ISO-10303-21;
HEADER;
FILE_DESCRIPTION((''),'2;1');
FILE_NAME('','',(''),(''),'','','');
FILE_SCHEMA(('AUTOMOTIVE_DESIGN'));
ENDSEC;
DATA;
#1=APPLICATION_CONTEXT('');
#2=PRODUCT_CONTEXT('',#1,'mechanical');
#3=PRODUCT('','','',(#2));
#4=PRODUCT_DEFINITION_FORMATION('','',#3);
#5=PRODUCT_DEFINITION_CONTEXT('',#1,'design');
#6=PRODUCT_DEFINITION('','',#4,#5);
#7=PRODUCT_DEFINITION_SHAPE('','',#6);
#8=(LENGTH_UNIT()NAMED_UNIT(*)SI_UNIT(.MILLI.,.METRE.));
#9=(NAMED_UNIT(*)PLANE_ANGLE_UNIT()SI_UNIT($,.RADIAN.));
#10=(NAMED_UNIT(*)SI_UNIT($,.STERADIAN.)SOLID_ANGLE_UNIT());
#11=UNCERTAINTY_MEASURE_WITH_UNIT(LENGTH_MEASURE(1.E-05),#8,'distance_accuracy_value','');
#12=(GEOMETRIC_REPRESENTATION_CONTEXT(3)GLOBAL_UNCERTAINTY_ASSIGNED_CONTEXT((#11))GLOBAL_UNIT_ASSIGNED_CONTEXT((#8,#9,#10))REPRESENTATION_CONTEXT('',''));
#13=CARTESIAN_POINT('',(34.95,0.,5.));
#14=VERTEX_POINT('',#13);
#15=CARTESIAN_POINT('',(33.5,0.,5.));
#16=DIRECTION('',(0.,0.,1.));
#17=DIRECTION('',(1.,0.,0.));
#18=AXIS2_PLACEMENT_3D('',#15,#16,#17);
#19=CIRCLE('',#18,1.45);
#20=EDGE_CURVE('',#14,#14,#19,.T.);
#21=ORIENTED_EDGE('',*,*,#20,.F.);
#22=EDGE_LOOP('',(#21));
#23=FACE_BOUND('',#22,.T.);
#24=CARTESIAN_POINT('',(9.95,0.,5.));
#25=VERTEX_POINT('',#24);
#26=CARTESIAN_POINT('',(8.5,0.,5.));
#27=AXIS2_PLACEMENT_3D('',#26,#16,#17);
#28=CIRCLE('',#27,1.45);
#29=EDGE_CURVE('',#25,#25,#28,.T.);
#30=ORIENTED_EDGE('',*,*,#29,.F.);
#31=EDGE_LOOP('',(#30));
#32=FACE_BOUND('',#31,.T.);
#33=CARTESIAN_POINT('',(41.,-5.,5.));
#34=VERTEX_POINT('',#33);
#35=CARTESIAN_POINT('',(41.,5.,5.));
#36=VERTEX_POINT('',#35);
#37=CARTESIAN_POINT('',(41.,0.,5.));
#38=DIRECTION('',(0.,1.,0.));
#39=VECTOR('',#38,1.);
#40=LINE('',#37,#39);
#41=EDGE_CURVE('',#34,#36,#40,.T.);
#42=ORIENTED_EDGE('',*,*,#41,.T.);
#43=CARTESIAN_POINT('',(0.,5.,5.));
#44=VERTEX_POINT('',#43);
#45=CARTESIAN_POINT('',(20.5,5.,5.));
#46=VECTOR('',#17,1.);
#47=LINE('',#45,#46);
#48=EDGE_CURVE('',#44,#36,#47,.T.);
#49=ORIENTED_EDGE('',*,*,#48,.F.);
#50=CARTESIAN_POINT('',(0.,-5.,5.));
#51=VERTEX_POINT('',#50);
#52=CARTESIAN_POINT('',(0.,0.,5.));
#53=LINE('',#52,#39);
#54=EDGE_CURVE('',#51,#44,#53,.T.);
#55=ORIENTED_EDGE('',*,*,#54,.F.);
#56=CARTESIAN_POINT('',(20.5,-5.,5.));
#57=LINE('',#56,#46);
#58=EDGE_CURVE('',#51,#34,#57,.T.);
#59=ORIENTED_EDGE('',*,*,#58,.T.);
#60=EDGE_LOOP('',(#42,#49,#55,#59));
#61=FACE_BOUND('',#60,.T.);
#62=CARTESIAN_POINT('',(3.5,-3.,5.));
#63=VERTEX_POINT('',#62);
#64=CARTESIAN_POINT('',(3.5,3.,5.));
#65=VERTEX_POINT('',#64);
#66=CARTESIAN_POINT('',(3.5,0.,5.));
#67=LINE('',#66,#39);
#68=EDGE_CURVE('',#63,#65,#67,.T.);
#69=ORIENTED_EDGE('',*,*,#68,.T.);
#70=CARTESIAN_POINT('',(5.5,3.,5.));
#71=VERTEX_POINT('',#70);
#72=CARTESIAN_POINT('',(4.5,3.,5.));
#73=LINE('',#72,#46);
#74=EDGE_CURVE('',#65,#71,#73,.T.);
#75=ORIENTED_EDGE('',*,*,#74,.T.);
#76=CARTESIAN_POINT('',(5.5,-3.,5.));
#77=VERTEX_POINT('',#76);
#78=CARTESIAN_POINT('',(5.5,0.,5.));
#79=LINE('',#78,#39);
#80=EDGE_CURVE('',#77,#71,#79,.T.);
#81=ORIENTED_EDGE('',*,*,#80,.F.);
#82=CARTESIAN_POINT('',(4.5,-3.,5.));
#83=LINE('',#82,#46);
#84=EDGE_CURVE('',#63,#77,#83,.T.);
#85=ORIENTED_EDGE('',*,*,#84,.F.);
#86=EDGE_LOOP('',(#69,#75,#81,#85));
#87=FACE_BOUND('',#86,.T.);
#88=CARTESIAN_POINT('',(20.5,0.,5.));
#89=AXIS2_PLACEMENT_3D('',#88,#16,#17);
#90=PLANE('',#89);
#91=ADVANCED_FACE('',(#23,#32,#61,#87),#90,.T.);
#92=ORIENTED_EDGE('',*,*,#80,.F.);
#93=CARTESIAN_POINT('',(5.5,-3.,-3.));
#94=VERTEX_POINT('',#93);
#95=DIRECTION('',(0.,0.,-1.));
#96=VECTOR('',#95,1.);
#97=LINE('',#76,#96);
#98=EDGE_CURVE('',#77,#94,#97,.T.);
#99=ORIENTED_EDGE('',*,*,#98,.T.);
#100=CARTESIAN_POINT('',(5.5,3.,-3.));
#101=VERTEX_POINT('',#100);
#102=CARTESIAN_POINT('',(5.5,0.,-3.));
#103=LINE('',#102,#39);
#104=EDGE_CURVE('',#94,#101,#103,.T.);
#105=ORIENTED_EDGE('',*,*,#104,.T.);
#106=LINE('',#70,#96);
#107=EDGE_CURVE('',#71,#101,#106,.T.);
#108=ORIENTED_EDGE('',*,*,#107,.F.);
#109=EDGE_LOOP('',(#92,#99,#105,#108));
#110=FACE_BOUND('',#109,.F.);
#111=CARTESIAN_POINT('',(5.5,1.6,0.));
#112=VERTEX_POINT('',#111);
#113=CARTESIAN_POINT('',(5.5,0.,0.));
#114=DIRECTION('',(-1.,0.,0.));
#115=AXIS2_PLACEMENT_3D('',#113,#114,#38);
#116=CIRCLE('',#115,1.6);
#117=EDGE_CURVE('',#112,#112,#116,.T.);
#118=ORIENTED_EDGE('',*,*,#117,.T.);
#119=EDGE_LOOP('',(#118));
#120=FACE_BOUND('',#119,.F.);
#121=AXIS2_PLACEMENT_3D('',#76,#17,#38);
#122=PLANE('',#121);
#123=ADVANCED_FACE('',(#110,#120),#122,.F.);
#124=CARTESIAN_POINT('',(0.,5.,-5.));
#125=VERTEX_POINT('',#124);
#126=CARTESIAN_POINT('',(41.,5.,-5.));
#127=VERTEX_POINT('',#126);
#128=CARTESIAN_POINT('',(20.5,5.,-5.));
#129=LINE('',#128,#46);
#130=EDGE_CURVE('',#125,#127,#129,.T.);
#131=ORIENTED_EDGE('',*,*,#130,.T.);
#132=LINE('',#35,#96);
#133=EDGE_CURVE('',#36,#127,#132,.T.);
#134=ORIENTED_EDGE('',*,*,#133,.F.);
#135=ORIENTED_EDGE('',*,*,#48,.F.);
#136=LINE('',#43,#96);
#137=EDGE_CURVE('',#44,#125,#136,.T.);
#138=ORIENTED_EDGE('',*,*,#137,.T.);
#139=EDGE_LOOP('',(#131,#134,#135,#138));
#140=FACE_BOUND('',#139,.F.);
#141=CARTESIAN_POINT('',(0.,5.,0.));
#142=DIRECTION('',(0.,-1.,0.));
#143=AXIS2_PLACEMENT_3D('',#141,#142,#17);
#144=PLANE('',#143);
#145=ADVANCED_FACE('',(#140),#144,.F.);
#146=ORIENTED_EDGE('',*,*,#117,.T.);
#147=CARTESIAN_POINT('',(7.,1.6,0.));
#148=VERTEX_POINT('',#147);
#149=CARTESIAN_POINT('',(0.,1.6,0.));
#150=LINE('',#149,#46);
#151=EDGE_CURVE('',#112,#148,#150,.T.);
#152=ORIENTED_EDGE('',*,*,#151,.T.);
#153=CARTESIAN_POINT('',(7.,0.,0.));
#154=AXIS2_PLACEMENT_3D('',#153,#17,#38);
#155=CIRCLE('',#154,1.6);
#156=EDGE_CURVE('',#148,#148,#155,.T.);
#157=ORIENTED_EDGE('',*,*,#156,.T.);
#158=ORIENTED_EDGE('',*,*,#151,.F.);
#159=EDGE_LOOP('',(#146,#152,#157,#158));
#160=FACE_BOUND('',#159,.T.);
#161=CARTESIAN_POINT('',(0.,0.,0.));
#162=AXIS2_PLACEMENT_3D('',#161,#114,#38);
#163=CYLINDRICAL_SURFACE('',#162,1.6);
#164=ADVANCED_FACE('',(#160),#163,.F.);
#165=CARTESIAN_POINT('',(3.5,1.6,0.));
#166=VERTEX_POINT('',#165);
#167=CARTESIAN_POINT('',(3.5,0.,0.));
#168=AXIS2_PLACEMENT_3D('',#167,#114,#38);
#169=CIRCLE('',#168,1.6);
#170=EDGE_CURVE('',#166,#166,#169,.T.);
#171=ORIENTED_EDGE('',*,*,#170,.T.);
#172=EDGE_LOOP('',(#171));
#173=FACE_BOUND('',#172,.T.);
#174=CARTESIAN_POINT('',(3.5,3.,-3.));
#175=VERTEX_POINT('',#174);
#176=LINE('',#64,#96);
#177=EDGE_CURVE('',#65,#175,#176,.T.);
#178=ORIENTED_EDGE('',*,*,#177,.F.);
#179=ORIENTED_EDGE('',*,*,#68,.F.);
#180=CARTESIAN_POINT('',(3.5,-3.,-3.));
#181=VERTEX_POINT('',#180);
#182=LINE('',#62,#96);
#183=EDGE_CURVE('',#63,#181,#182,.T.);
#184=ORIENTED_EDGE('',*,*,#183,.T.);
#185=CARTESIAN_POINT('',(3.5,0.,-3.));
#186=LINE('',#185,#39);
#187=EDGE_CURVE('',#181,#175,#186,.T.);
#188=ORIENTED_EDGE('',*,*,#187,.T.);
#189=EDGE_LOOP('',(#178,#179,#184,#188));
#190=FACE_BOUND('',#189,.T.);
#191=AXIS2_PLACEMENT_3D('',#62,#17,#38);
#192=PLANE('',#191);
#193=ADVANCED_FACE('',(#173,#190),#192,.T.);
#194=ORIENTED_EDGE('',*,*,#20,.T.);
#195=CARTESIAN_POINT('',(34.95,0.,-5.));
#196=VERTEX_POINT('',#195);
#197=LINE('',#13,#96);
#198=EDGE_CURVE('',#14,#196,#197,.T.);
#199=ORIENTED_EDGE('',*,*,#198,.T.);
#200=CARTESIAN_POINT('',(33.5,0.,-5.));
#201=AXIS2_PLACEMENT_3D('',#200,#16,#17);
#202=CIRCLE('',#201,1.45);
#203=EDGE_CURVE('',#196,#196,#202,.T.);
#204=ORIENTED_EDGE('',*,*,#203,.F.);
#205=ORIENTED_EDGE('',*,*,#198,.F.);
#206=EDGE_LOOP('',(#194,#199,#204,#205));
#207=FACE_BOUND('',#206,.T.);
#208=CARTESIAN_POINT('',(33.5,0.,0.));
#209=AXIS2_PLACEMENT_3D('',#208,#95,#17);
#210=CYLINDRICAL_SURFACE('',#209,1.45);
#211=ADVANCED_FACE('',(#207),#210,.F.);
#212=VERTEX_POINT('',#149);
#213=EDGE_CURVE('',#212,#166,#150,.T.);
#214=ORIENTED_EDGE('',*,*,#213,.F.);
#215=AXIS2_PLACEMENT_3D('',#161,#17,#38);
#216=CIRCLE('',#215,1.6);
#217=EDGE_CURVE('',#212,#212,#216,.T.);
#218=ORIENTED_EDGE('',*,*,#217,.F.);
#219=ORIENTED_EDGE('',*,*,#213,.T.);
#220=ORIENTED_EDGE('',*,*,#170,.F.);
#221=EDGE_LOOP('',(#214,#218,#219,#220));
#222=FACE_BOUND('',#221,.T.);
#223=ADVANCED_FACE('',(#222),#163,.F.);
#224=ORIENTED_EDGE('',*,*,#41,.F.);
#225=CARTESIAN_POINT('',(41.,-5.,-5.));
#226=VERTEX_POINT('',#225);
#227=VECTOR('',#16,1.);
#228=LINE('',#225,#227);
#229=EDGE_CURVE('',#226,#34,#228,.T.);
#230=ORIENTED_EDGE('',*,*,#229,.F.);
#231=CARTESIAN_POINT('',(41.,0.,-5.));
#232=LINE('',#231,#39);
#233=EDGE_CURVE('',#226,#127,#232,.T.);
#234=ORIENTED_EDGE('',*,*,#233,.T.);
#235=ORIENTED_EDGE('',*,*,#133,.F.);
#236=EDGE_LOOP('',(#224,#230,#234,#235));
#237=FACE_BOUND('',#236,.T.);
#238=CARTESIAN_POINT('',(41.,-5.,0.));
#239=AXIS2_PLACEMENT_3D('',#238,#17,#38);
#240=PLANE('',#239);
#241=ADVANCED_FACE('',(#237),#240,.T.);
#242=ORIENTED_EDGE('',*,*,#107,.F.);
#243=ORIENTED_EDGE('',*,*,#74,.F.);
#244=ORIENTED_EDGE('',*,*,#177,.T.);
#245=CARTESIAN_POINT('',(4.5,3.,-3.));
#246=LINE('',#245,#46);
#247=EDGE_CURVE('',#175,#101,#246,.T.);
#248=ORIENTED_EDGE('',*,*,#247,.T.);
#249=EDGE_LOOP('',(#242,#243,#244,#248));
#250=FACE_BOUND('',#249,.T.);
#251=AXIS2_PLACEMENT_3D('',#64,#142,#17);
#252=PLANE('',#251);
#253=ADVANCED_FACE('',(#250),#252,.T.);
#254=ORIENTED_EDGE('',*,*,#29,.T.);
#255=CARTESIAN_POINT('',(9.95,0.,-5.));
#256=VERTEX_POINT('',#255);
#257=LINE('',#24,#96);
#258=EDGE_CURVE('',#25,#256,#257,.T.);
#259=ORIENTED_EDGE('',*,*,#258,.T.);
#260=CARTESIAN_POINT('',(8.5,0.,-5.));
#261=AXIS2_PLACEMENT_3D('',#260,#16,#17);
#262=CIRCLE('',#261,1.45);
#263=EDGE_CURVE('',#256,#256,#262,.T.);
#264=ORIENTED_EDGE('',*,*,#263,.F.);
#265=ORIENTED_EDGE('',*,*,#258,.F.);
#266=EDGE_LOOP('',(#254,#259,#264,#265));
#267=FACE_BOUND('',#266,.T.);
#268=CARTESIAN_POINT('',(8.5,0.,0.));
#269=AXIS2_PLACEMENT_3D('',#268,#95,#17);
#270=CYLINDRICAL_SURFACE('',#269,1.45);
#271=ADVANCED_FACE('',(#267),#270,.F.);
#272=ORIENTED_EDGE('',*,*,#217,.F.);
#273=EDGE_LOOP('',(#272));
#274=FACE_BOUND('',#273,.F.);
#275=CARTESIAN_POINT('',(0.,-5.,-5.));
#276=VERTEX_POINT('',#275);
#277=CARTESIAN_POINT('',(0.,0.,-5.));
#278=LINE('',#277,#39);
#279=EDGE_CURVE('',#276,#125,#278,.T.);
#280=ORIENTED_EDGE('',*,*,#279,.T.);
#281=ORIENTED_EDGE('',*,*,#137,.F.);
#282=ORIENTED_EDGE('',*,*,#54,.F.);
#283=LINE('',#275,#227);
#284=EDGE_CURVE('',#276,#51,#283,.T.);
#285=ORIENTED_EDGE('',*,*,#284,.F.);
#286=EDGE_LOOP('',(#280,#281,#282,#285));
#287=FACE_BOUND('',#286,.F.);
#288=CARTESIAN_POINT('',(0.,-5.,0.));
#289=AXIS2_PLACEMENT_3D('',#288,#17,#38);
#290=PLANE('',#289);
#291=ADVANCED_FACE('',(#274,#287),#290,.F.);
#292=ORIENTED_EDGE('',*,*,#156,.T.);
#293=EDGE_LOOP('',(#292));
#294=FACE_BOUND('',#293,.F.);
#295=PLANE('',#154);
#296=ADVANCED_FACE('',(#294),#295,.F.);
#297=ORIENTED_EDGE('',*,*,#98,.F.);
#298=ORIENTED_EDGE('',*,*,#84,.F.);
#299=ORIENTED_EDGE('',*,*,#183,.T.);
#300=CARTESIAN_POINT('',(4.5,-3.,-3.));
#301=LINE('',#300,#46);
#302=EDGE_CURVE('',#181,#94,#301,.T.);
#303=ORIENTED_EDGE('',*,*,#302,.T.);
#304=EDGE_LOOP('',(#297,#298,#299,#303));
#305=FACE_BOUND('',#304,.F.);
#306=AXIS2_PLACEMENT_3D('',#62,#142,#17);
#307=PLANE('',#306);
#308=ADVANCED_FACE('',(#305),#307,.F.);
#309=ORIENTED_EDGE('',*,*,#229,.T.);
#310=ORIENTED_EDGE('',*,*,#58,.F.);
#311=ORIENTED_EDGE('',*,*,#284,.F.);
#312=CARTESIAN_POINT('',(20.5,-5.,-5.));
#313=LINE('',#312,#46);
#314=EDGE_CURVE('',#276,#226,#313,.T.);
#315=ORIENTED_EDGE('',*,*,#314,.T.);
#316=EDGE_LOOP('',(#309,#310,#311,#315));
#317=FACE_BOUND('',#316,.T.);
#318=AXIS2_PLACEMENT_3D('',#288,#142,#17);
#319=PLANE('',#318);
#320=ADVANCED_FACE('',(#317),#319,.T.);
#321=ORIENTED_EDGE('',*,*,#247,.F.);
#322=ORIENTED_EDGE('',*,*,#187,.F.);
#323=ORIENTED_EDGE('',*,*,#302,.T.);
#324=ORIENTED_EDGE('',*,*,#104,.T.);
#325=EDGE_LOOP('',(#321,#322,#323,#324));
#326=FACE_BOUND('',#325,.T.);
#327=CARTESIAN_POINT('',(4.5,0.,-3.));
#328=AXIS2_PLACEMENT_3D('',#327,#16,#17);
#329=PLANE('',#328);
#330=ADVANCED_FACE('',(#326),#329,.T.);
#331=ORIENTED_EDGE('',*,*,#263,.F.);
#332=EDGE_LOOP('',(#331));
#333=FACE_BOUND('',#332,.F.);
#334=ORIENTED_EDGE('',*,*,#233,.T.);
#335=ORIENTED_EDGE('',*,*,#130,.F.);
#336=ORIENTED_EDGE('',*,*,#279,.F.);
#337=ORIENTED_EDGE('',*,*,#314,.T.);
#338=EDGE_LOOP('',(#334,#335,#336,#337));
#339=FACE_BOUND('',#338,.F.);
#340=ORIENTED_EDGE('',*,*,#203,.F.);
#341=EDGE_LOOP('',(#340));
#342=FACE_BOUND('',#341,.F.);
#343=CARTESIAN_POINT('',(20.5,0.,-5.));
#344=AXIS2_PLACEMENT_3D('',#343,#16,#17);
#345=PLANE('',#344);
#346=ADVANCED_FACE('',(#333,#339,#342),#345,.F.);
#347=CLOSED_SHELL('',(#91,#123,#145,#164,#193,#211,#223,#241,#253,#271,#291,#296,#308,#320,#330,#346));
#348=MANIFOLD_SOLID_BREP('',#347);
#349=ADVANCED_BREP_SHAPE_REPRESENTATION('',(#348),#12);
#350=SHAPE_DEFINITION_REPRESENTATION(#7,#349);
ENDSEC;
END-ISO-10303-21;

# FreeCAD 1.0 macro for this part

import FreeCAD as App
import Part
import Sketcher

V = App.Vector
Q = App.Units.Quantity


def add_polygon(sketch, points):
    """Adds a closed chain of lines whose ends are joined by coincident constraints."""
    first, n = sketch.GeometryCount, len(points)
    for a, b in zip(points, points[1:] + points[:1]):
        sketch.addGeometry(Part.LineSegment(App.Vector(*a, 0), App.Vector(*b, 0)), False)
    for i in range(n):
        sketch.addConstraint(Sketcher.Constraint("Coincident", first + i, 2, first + (i + 1) % n, 1))

doc = App.newDocument("Part")
body = doc.addObject("PartDesign::Body", "Body")

sketch1 = doc.addObject("Sketcher::SketchObject", "Sketch")
body.addObject(sketch1)
sketch1.AttachmentSupport = (doc.XY_Plane, [""])
sketch1.MapMode = "FlatFace"
add_polygon(sketch1, [(0, 5), (0, -5), (41, -5), (41, 5)])
sketch1.addGeometry(Part.Circle(V(8.5, 0, 0), V(0, 0, 1), 1.4), False)
sketch1.addGeometry(Part.Circle(V(33.5, 0, 0), V(0, 0, 1), 1.4), False)
sketch1.addConstraint([
    Sketcher.Constraint("Vertical", 0),
    Sketcher.Constraint("Horizontal", 1),
    Sketcher.Constraint("Vertical", 2),
    Sketcher.Constraint("Horizontal", 3),
    Sketcher.Constraint("Equal", 4, 5),
    Sketcher.Constraint("Symmetric", 0, 2, 3, 2, -1, 1),
    Sketcher.Constraint("PointOnObject", 4, 3, -1),
    Sketcher.Constraint("PointOnObject", 5, 3, -1),
    Sketcher.Constraint("Diameter", 4, Q("2.9 mm")),
    Sketcher.Constraint("DistanceX", 1, 1, 1, 2, Q("41 mm")),
    Sketcher.Constraint("DistanceY", 0, 2, 0, 1, Q("10 mm")),
    Sketcher.Constraint("DistanceX", 4, 3, 5, 3, Q("25 mm")),
    Sketcher.Constraint("DistanceX", -1, 1, 4, 3, Q("8.5 mm")),
])
pad1 = doc.addObject("PartDesign::Pad", "Pad")
body.addObject(pad1)
pad1.Profile = sketch1
pad1.Length = 10
pad1.Midplane = True

sketch2 = doc.addObject("Sketcher::SketchObject", "Sketch001")
body.addObject(sketch2)
sketch2.AttachmentSupport = (doc.YZ_Plane, [""])
sketch2.MapMode = "FlatFace"
sketch2.addGeometry(Part.Circle(V(0, 0, 0), V(0, 0, 1), 1.6), False)
sketch2.addConstraint([
    Sketcher.Constraint("Coincident", 0, 3, -1, 1),
    Sketcher.Constraint("Diameter", 0, Q("3.2 mm")),
])
pocket1 = doc.addObject("PartDesign::Pocket", "Pocket")
body.addObject(pocket1)
pocket1.Profile = sketch2
pocket1.Length = 7
pocket1.Reversed = True

sketch3 = doc.addObject("Sketcher::SketchObject", "Sketch002")
body.addObject(sketch3)
sketch3.AttachmentSupport = (doc.XY_Plane, [""])
sketch3.MapMode = "FlatFace"
sketch3.AttachmentOffset = App.Placement(V(0, 0, 5), App.Rotation())
add_polygon(sketch3, [(3.5, 3), (3.5, -3), (5.5, -3), (5.5, 3)])
sketch3.addConstraint([
    Sketcher.Constraint("Vertical", 0),
    Sketcher.Constraint("Horizontal", 1),
    Sketcher.Constraint("Vertical", 2),
    Sketcher.Constraint("Horizontal", 3),
    Sketcher.Constraint("DistanceX", 1, 1, 1, 2, Q("2 mm")),
    Sketcher.Constraint("DistanceY", 0, 2, 0, 1, Q("6 mm")),
    Sketcher.Constraint("DistanceY", 0, 2, -1, 1, Q("3 mm")),
    Sketcher.Constraint("DistanceX", -1, 1, 0, 2, Q("3.5 mm")),
])
pocket2 = doc.addObject("PartDesign::Pocket", "Pocket001")
body.addObject(pocket2)
pocket2.Profile = sketch3
pocket2.Length = 8

doc.recompute()
